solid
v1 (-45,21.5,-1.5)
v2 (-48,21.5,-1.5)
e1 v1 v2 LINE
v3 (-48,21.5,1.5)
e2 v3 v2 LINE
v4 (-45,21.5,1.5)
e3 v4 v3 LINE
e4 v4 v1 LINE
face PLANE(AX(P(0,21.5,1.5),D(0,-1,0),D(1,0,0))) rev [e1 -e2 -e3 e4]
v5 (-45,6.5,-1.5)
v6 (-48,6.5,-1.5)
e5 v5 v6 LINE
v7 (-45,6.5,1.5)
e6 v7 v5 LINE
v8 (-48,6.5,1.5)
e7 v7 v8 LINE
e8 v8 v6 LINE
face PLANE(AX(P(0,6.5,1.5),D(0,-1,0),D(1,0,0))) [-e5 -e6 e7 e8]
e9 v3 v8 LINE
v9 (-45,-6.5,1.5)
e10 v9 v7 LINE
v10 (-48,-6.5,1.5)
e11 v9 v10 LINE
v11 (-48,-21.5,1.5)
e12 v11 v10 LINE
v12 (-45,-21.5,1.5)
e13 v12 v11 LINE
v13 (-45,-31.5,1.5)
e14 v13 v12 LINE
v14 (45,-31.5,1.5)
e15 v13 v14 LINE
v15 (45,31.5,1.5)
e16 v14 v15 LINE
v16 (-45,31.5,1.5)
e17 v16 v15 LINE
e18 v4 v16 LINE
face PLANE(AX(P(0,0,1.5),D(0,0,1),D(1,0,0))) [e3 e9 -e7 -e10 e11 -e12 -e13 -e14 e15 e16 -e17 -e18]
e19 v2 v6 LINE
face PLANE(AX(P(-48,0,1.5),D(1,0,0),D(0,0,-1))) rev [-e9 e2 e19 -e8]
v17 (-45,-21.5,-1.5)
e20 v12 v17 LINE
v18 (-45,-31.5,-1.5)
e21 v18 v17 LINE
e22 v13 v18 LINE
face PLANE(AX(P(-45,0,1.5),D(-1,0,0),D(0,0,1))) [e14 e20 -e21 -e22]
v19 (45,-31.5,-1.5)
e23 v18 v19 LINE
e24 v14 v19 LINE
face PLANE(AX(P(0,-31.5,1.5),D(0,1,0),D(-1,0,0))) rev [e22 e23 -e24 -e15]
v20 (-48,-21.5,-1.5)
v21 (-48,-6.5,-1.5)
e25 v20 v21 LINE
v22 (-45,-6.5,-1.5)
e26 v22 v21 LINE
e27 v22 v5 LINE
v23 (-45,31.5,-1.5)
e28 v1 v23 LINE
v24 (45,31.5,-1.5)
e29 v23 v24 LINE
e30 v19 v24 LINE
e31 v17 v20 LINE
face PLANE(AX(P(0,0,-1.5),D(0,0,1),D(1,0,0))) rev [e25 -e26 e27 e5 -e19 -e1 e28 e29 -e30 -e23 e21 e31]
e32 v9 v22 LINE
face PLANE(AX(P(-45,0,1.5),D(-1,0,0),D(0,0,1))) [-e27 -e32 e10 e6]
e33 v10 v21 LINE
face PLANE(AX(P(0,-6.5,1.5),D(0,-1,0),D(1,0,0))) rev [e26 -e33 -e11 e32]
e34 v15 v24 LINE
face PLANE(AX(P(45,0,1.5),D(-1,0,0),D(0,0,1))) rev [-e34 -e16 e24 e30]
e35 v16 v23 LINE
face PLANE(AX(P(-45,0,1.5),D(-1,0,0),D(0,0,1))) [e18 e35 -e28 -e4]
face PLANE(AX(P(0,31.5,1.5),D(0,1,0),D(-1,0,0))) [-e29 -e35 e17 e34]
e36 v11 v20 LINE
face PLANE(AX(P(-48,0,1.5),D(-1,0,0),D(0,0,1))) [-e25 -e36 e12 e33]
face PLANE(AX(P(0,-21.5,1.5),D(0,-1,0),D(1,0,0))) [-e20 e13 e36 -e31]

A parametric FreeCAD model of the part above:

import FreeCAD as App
import Part
import Sketcher
from FreeCAD import Vector
Q = App.Units.Quantity


def add_polygon(sketch, points):
    """Adds a closed chain of lines whose ends are joined by coincident constraints."""
    first, n = sketch.GeometryCount, len(points)
    for a, b in zip(points, points[1:] + points[:1]):
        sketch.addGeometry(Part.LineSegment(App.Vector(*a, 0), App.Vector(*b, 0)), False)
    for i in range(n):
        sketch.addConstraint(Sketcher.Constraint("Coincident", first + i, 2, first + (i + 1) % n, 1))

doc = App.newDocument("Part")
params = doc.addObject("Spreadsheet::Sheet", "Params")
for row, (alias, value) in enumerate([
    ("sketch1_width", "90 mm"),
    ("sketch1_width2", "3 mm"),
    ("sketch1_height", "10 mm"),
    ("sketch1_height2", "63 mm"),
    ("sketch1_height3", "15 mm"),
    ("pad1_length", "3 mm"),
], start=1):
    params.set(f"A{row}", alias)
    params.set(f"B{row}", "=" + value)
    params.setAlias(f"B{row}", alias)

body = doc.addObject("PartDesign::Body", "Body")

# Sketch on XY plane
sketch1 = body.newObject("Sketcher::SketchObject", "Sketch")
sketch1.AttachmentSupport = (doc.getObject("XY_Plane"), [""])
sketch1.MapMode = "FlatFace"
add_polygon(sketch1, [(-45, -21.5), (-45, -31.5), (45, -31.5), (45, 31.5), (-45, 31.5), (-45, 21.5), (-48, 21.5), (-48, 6.5), (-45, 6.5), (-45, -6.5), (-48, -6.5), (-48, -21.5)])  # lines 0-11
sketch1.addConstraint(Sketcher.Constraint("Vertical", 0))
sketch1.addConstraint(Sketcher.Constraint("Horizontal", 1))
sketch1.addConstraint(Sketcher.Constraint("Vertical", 2))
sketch1.addConstraint(Sketcher.Constraint("Horizontal", 3))
sketch1.addConstraint(Sketcher.Constraint("Vertical", 4))
sketch1.addConstraint(Sketcher.Constraint("Horizontal", 5))
sketch1.addConstraint(Sketcher.Constraint("Vertical", 6))
sketch1.addConstraint(Sketcher.Constraint("Horizontal", 7))
sketch1.addConstraint(Sketcher.Constraint("Vertical", 8))
sketch1.addConstraint(Sketcher.Constraint("Horizontal", 9))
sketch1.addConstraint(Sketcher.Constraint("Vertical", 10))
sketch1.addConstraint(Sketcher.Constraint("Horizontal", 11))
sketch1.addConstraint(Sketcher.Constraint("Symmetric", 0, 2, 2, 2, -1, 1))
sketch1.addConstraint(Sketcher.Constraint("Symmetric", 6, 2, 9, 2, -1))
sketch1.addConstraint(Sketcher.Constraint("Symmetric", 4, 2, 11, 2, -1))
sketch1.addConstraint(Sketcher.Constraint("Vertical", 4, 2, 7, 2))
sketch1.addConstraint(Sketcher.Constraint("DistanceX", 1, 1, 1, 2, Q("90 mm")))
sketch1.addConstraint(Sketcher.Constraint("DistanceX", 5, 2, 5, 1, Q("3 mm")))
sketch1.addConstraint(Sketcher.Constraint("DistanceY", 0, 2, 0, 1, Q("10 mm")))
sketch1.addConstraint(Sketcher.Constraint("DistanceY", 2, 1, 2, 2, Q("63 mm")))
sketch1.addConstraint(Sketcher.Constraint("DistanceY", 6, 2, 6, 1, Q("15 mm")))
sketch1.setExpression("Constraints[28]", "Params.sketch1_width")
sketch1.setExpression("Constraints[29]", "Params.sketch1_width2")
sketch1.setExpression("Constraints[30]", "Params.sketch1_height")
sketch1.setExpression("Constraints[31]", "Params.sketch1_height2")
sketch1.setExpression("Constraints[32]", "Params.sketch1_height3")
pad1 = body.newObject("PartDesign::Pad", "Pad")
pad1.Profile = sketch1
pad1.setExpression("Length", "Params.pad1_length")
pad1.Midplane = True

doc.recompute()
